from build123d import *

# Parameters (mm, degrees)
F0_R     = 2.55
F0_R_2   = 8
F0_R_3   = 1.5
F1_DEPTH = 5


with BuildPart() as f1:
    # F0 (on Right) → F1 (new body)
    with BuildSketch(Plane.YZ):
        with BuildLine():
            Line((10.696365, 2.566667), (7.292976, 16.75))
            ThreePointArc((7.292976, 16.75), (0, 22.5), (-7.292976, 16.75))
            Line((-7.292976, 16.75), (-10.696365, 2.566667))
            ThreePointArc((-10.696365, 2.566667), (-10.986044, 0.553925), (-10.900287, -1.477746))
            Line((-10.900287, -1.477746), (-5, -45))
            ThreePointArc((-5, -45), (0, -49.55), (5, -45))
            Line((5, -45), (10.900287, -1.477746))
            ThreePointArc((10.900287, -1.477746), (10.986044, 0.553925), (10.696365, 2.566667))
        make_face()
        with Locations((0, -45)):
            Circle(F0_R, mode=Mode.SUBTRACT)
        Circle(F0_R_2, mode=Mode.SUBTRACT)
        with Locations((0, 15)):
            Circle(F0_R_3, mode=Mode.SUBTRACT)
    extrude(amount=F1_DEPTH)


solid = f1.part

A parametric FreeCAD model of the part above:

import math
import FreeCAD as App
import Part
import Sketcher
from FreeCAD import Vector

doc = App.newDocument("Part")
body = doc.addObject("PartDesign::Body", "Body")

sketch1 = doc.addObject("Sketcher::SketchObject", "Sketch")
body.addObject(sketch1)
sketch1.AttachmentSupport = (doc.YZ_Plane, [""])
sketch1.MapMode = "FlatFace"
sketch1.addGeometry([
    Part.LineSegment(Vector(10.7, 2.6, 0), Vector(7.3, 16.8, 0)),
    Part.ArcOfCircle(Part.Circle(Vector(0, 15, 0), Vector(0, 0, 1), 7.5), math.radians(13), math.radians(167)),
    Part.LineSegment(Vector(-7.3, 16.8, 0), Vector(-10.7, 2.6, 0)),
    Part.ArcOfCircle(Part.Circle(Vector(0, 0, 0), Vector(0, 0, 1), 11), math.radians(167), math.radians(188)),
    Part.LineSegment(Vector(-10.9, -1.5, 0), Vector(-5, -45, 0)),
    Part.ArcOfCircle(Part.Circle(Vector(0, -44.5, 0), Vector(0, 0, 1), 5), math.radians(-175), math.radians(-5)),
    Part.LineSegment(Vector(5, -45, 0), Vector(10.9, -1.5, 0)),
    Part.ArcOfCircle(Part.Circle(Vector(0, 0, 0), Vector(0, 0, 1), 11), math.radians(-8), math.radians(13)),
    Part.Circle(Vector(0, -45, 0), Vector(0, 0, 1), 2.5),
    Part.Circle(Vector(0, 0, 0), Vector(0, 0, 1), 8),
    Part.Circle(Vector(0, 15, 0), Vector(0, 0, 1), 1.5),
], False)
sketch1.addConstraint([
    Sketcher.Constraint("Tangent", 0, 2, 1, 1),
    Sketcher.Constraint("Tangent", 1, 2, 2, 1),
    Sketcher.Constraint("Tangent", 2, 2, 3, 1),
    Sketcher.Constraint("Tangent", 3, 2, 4, 1),
    Sketcher.Constraint("Coincident", 4, 2, 5, 1),
    Sketcher.Constraint("Coincident", 5, 2, 6, 1),
    Sketcher.Constraint("Tangent", 6, 2, 7, 1),
    Sketcher.Constraint("Tangent", 7, 2, 0, 1),
    Sketcher.Constraint("Coincident", 3, 3, -1, 1),
    Sketcher.Constraint("Coincident", 7, 3, -1, 1),
    Sketcher.Constraint("Coincident", 9, 3, -1, 1),
    Sketcher.Constraint("Coincident", 10, 3, 1, 3),
    Sketcher.Constraint("Equal", 3, 7),
    Sketcher.Constraint("Symmetric", 4, 2, 5, 2, -2),
    Sketcher.Constraint("PointOnObject", 1, 3, -2),
    Sketcher.Constraint("PointOnObject", 8, 3, -2),
    Sketcher.Constraint("Horizontal", 8, 3, 4, 2),
    Sketcher.Constraint("Diameter", 9, 16.0),
    Sketcher.Constraint("Diameter", 10, 3.0),
    Sketcher.Constraint("Diameter", 8, 5.1),
    Sketcher.Constraint("Radius", 1, 7.5),
    Sketcher.Constraint("DistanceY", -1, 1, 1, 3, 15.0),
    Sketcher.Constraint("DistanceY", 8, 3, -1, 1, 45.0),
    Sketcher.Constraint("DistanceX", 4, 2, -1, 1, 5.0),
    Sketcher.Constraint("DistanceY", -1, 1, 0, 2, 16.75),
    Sketcher.Constraint("Radius", 5, 5.022253),
])
pad1 = doc.addObject("PartDesign::Pad", "Pad")
body.addObject(pad1)
pad1.Profile = sketch1
pad1.Length = 5

doc.recompute()
